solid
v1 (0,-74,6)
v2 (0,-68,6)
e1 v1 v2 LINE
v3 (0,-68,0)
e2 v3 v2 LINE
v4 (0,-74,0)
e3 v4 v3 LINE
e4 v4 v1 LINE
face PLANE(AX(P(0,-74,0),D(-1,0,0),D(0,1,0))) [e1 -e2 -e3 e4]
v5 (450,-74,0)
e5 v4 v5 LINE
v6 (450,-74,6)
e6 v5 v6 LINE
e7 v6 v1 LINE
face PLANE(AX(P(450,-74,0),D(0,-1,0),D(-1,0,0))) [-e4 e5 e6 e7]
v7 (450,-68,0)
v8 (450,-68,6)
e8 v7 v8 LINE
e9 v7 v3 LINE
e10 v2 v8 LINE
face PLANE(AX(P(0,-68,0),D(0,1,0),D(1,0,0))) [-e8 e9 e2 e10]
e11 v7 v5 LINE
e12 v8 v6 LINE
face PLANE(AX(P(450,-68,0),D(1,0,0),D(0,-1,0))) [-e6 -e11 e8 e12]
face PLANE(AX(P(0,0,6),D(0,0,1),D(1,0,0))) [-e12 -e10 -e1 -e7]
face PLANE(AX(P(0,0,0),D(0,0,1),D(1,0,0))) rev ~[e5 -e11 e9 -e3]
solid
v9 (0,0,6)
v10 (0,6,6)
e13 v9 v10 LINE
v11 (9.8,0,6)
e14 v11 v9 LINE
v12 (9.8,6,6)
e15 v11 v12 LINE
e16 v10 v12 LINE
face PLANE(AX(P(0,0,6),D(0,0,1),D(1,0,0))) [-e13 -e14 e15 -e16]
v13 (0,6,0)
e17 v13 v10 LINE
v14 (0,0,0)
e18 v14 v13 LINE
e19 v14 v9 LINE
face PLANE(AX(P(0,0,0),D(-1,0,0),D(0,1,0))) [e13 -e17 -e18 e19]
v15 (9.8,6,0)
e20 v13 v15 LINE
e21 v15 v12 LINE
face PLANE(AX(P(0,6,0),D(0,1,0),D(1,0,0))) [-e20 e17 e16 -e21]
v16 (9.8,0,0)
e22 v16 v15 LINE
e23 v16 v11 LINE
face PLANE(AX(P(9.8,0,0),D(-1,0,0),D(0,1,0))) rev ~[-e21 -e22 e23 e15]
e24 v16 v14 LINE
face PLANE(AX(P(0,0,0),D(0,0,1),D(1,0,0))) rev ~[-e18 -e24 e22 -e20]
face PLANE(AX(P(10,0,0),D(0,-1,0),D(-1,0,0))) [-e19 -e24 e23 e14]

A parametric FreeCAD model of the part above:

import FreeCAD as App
import Part
import Sketcher

V = App.Vector


def add_polygon(sketch, points):
    """Adds a closed chain of lines whose ends are joined by coincident constraints."""
    first, n = sketch.GeometryCount, len(points)
    for a, b in zip(points, points[1:] + points[:1]):
        sketch.addGeometry(Part.LineSegment(App.Vector(*a, 0), App.Vector(*b, 0)), False)
    for i in range(n):
        sketch.addConstraint(Sketcher.Constraint("Coincident", first + i, 2, first + (i + 1) % n, 1))

doc = App.newDocument("Part")
body = doc.addObject("PartDesign::Body", "Body")
body.AllowCompound = True

sketch1 = body.newObject("Sketcher::SketchObject", "Sketch")
sketch1.AttachmentSupport = (doc.getObject("XY_Plane"), [""])
sketch1.MapMode = "FlatFace"
add_polygon(sketch1, [(10, 6), (0, 6), (0, 0), (10, 0)])
add_polygon(sketch1, [(450, -68), (0, -68), (0, -74), (450, -74)])
sketch1.addConstraint([
    Sketcher.Constraint("Horizontal", 0),
    Sketcher.Constraint("Vertical", 1),
    Sketcher.Constraint("Horizontal", 2),
    Sketcher.Constraint("Vertical", 3),
    Sketcher.Constraint("Horizontal", 4),
    Sketcher.Constraint("Vertical", 5),
    Sketcher.Constraint("Horizontal", 6),
    Sketcher.Constraint("Vertical", 7),
    Sketcher.Constraint("Coincident", 1, 2, -1, 1),
    Sketcher.Constraint("PointOnObject", 4, 2, -2),
    Sketcher.Constraint("Equal", 3, 5),
    Sketcher.Constraint("DistanceX", 4, 2, 4, 1, 450.0),
    Sketcher.Constraint("DistanceY", 1, 2, 1, 1, 6.0),
    Sketcher.Constraint("DistanceX", 0, 2, 0, 1, 10.0),
    Sketcher.Constraint("DistanceY", 4, 2, -1, 1, 68.0),
])
pad1 = body.newObject("PartDesign::Pad", "Pad")
pad1.Profile = sketch1
pad1.Length = 6

sketch2 = body.newObject("Sketcher::SketchObject", "Sketch001")
sketch2.AttachmentSupport = (doc.getObject("XY_Plane"), [""])
sketch2.MapMode = "FlatFace"
add_polygon(sketch2, [(9.8, 0), (9.8, 6), (20.2, 6), (20.2, 0)])
sketch2.addConstraint([
    Sketcher.Constraint("Vertical", 0),
    Sketcher.Constraint("Horizontal", 1),
    Sketcher.Constraint("Vertical", 2),
    Sketcher.Constraint("Horizontal", 3),
    Sketcher.Constraint("PointOnObject", 2, 2, -1),
    Sketcher.Constraint("DistanceY", 0, 1, 0, 2, 6.0),
    Sketcher.Constraint("DistanceX", 1, 1, 1, 2, 10.4),
    Sketcher.Constraint("DistanceX", -1, 1, 0, 2, 9.8),
])
pocket1 = body.newObject("PartDesign::Pocket", "Pocket")
pocket1.Profile = sketch2
pocket1.Length = 6
pocket1.Reversed = True

doc.recompute()
